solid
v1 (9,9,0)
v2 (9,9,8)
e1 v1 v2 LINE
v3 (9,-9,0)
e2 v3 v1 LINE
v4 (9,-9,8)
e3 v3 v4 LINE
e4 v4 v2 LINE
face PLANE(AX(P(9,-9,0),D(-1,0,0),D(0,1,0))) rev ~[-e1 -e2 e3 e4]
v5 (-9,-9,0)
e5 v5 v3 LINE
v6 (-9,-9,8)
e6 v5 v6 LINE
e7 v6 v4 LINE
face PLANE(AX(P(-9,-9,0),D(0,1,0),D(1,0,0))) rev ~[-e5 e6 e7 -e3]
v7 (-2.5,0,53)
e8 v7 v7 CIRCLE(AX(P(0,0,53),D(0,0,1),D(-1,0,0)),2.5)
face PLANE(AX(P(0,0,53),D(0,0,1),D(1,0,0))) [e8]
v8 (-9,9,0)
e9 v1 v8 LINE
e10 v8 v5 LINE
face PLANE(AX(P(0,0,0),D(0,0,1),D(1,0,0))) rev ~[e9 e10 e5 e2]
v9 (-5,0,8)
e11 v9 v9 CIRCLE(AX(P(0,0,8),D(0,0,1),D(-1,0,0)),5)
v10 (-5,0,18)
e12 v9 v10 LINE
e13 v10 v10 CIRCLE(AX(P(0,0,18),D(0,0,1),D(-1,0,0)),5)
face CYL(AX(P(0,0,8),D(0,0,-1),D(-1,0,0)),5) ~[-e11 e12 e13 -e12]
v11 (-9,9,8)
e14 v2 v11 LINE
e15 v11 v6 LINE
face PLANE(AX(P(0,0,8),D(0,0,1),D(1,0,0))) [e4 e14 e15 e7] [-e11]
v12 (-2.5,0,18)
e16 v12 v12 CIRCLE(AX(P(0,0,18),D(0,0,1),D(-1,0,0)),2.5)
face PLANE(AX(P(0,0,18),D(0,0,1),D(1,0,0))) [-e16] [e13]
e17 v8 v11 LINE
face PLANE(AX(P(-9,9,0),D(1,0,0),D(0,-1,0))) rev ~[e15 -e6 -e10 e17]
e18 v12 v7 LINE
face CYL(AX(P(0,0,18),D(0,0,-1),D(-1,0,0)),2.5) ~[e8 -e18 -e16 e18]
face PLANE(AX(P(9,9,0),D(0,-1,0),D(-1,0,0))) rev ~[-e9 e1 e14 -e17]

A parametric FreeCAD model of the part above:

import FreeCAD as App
import Part
import Sketcher
from FreeCAD import Vector


def add_polygon(sketch, points):
    """Adds a closed chain of lines whose ends are joined by coincident constraints."""
    first, n = sketch.GeometryCount, len(points)
    for a, b in zip(points, points[1:] + points[:1]):
        sketch.addGeometry(Part.LineSegment(App.Vector(*a, 0), App.Vector(*b, 0)), False)
    for i in range(n):
        sketch.addConstraint(Sketcher.Constraint("Coincident", first + i, 2, first + (i + 1) % n, 1))

doc = App.newDocument("Part")
params = doc.addObject("Spreadsheet::Sheet", "Params")
for row, (alias, value) in enumerate([
    ("sketch1_width", "18 mm"),
    ("pad1_length", "8 mm"),
    ("sketch2_diameter", "10 mm"),
    ("pad2_length", "10 mm"),
    ("sketch3_diameter", "5 mm"),
    ("pad3_length", "35 mm"),
], start=1):
    params.set(f"A{row}", alias)
    params.set(f"B{row}", "=" + value)
    params.setAlias(f"B{row}", alias)

body = doc.addObject("PartDesign::Body", "Body")

sketch1 = body.newObject("Sketcher::SketchObject", "Sketch")
sketch1.AttachmentSupport = (doc.getObject("XY_Plane"), [""])
sketch1.MapMode = "FlatFace"
add_polygon(sketch1, [(9, -9), (9, 9), (-9, 9), (-9, -9)])
sketch1.addConstraint([
    Sketcher.Constraint("Vertical", 0),
    Sketcher.Constraint("Horizontal", 1),
    Sketcher.Constraint("Vertical", 2),
    Sketcher.Constraint("Horizontal", 3),
    Sketcher.Constraint("Symmetric", 0, 2, 2, 2, -1, 1),
    Sketcher.Constraint("Equal", 3, 0),
    Sketcher.Constraint("DistanceX", 1, 2, 1, 1, 18.0),
])
sketch1.setExpression("Constraints[10]", "Params.sketch1_width")
pad1 = body.newObject("PartDesign::Pad", "Pad")
pad1.Profile = sketch1
pad1.setExpression("Length", "Params.pad1_length")

sketch2 = body.newObject("Sketcher::SketchObject", "Sketch001")
sketch2.AttachmentSupport = (doc.getObject("XY_Plane"), [""])
sketch2.MapMode = "FlatFace"
sketch2.AttachmentOffset = App.Placement(Vector(0, 0, 8), App.Rotation())
sketch2.addGeometry(Part.Circle(Vector(0, 0, 0), Vector(0, 0, 1), 5), False)
sketch2.addConstraint([
    Sketcher.Constraint("Coincident", 0, 3, -1, 1),
    Sketcher.Constraint("Diameter", 0, 10.0),
])
sketch2.setExpression("Constraints[1]", "Params.sketch2_diameter")
pad2 = body.newObject("PartDesign::Pad", "Pad001")
pad2.Profile = sketch2
pad2.setExpression("Length", "Params.pad2_length")

sketch3 = body.newObject("Sketcher::SketchObject", "Sketch002")
sketch3.AttachmentSupport = (doc.getObject("XY_Plane"), [""])
sketch3.MapMode = "FlatFace"
sketch3.AttachmentOffset = App.Placement(Vector(0, 0, 18), App.Rotation())
sketch3.addGeometry(Part.Circle(Vector(0, 0, 0), Vector(0, 0, 1), 2.5), False)
sketch3.addConstraint([
    Sketcher.Constraint("Coincident", 0, 3, -1, 1),
    Sketcher.Constraint("Diameter", 0, 5.0),
])
sketch3.setExpression("Constraints[1]", "Params.sketch3_diameter")
pad3 = body.newObject("PartDesign::Pad", "Pad002")
pad3.Profile = sketch3
pad3.setExpression("Length", "Params.pad3_length")

doc.recompute()
